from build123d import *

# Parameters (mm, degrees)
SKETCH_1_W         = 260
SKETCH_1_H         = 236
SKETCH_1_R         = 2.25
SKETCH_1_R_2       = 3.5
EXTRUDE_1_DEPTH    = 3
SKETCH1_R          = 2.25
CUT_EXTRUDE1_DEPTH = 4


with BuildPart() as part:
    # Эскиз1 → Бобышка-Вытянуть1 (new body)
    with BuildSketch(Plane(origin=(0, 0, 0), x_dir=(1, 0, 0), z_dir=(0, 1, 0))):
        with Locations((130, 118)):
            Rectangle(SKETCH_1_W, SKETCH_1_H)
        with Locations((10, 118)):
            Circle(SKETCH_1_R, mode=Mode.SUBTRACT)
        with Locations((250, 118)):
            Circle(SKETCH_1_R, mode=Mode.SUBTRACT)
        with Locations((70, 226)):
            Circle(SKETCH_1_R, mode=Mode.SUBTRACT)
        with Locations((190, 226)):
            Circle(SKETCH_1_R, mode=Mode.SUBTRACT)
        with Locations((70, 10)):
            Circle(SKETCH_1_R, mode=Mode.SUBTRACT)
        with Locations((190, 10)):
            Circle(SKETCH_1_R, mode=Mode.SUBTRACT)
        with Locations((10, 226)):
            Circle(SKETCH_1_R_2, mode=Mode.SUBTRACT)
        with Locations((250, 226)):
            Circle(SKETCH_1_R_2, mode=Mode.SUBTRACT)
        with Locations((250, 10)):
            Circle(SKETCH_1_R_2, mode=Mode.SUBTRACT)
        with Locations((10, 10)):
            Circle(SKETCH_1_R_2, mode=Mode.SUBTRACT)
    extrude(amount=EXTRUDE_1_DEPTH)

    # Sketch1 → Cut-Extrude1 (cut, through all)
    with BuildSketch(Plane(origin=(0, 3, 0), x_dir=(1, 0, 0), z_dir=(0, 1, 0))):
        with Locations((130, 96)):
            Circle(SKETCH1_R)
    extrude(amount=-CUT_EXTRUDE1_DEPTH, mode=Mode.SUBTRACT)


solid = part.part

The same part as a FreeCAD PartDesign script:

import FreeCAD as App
import Part
import Sketcher

V = App.Vector
Q = App.Units.Quantity

doc = App.newDocument("Part")
body = doc.addObject("PartDesign::Body", "Body")

# Sketch on XZ plane
sketch1 = doc.addObject("Sketcher::SketchObject", "Sketch")
body.addObject(sketch1)
sketch1.AttachmentSupport = (doc.XZ_Plane, [""])
sketch1.MapMode = "FlatFace"
sketch1.addGeometry([
    Part.LineSegment(V(0, -236, 0), V(0, 0, 0)),  # 0
    Part.LineSegment(V(0, 0, 0), V(260, 0, 0)),  # 1
    Part.LineSegment(V(260, 0, 0), V(260, -236, 0)),  # 2
    Part.LineSegment(V(260, -236, 0), V(0, -236, 0)),  # 3
    Part.Circle(V(10, -10, 0), V(0, 0, 1), 3.5),  # 4
    Part.Circle(V(70, -10, 0), V(0, 0, 1), 2.2),  # 5
    Part.Circle(V(190, -10, 0), V(0, 0, 1), 2.2),  # 6
    Part.Circle(V(250, -10, 0), V(0, 0, 1), 3.5),  # 7
    Part.Circle(V(10, -118, 0), V(0, 0, 1), 2.2),  # 8
    Part.Circle(V(10, -226, 0), V(0, 0, 1), 3.5),  # 9
    Part.Circle(V(70, -226, 0), V(0, 0, 1), 2.2),  # 10
    Part.Circle(V(250, -118, 0), V(0, 0, 1), 2.2),  # 11
    Part.Circle(V(190, -226, 0), V(0, 0, 1), 2.2),  # 12
    Part.Circle(V(250, -226, 0), V(0, 0, 1), 3.5),  # 13
], False)
sketch1.addConstraint([
    Sketcher.Constraint("Coincident", 0, 2, 1, 1),
    Sketcher.Constraint("Coincident", 1, 2, 2, 1),
    Sketcher.Constraint("Coincident", 2, 2, 3, 1),
    Sketcher.Constraint("Coincident", 3, 2, 0, 1),
    Sketcher.Constraint("Vertical", 0),
    Sketcher.Constraint("Horizontal", 1),
    Sketcher.Constraint("Vertical", 2),
    Sketcher.Constraint("Horizontal", 3),
    Sketcher.Constraint("Coincident", 0, 2, -1, 1),
    Sketcher.Constraint("Equal", 5, 6),
    Sketcher.Constraint("Equal", 4, 7),
    Sketcher.Constraint("Equal", 6, 8),
    Sketcher.Constraint("Equal", 7, 9),
    Sketcher.Constraint("Equal", 8, 10),
    Sketcher.Constraint("Equal", 10, 11),
    Sketcher.Constraint("Equal", 11, 12),
    Sketcher.Constraint("Equal", 9, 13),
    Sketcher.Constraint("Horizontal", 4, 3, 5, 3),
    Sketcher.Constraint("Horizontal", 5, 3, 6, 3),
    Sketcher.Constraint("Horizontal", 6, 3, 7, 3),
    Sketcher.Constraint("Horizontal", 9, 3, 10, 3),
    Sketcher.Constraint("Horizontal", 8, 3, 11, 3),
    Sketcher.Constraint("Horizontal", 10, 3, 12, 3),
    Sketcher.Constraint("Horizontal", 12, 3, 13, 3),
    Sketcher.Constraint("Vertical", 4, 3, 8, 3),
    Sketcher.Constraint("Vertical", 8, 3, 9, 3),
    Sketcher.Constraint("Vertical", 5, 3, 10, 3),
    Sketcher.Constraint("Vertical", 7, 3, 11, 3),
    Sketcher.Constraint("Vertical", 6, 3, 12, 3),
    Sketcher.Constraint("Vertical", 11, 3, 13, 3),
    Sketcher.Constraint("Diameter", 4, Q("7 mm")),
    Sketcher.Constraint("Diameter", 5, Q("4.5 mm")),
    Sketcher.Constraint("DistanceX", 1, 1, 1, 2, Q("260 mm")),
    Sketcher.Constraint("DistanceY", 0, 1, 0, 2, Q("236 mm")),
    Sketcher.Constraint("DistanceX", -1, 1, 4, 3, Q("10 mm")),
    Sketcher.Constraint("DistanceY", 4, 3, -1, 1, Q("10 mm")),
    Sketcher.Constraint("DistanceX", -1, 1, 5, 3, Q("70 mm")),
    Sketcher.Constraint("DistanceX", -1, 1, 6, 3, Q("190 mm")),
    Sketcher.Constraint("DistanceX", -1, 1, 7, 3, Q("250 mm")),
    Sketcher.Constraint("DistanceY", 8, 3, -1, 1, Q("118 mm")),
    Sketcher.Constraint("DistanceY", 9, 3, -1, 1, Q("226 mm")),
])
pad1 = doc.addObject("PartDesign::Pad", "Pad")
body.addObject(pad1)
pad1.Profile = sketch1
pad1.Length = 3
pad1.Reversed = True

# Sketch on XZ plane
sketch2 = doc.addObject("Sketcher::SketchObject", "Sketch001")
body.addObject(sketch2)
sketch2.AttachmentSupport = (doc.XZ_Plane, [""])
sketch2.MapMode = "FlatFace"
sketch2.AttachmentOffset = App.Placement(V(0, 0, -3), App.Rotation())
sketch2.addGeometry(Part.Circle(V(130, -96, 0), V(0, 0, 1), 2.2), False)
sketch2.addConstraint([
    Sketcher.Constraint("Diameter", 0, Q("4.5 mm")),
    Sketcher.Constraint("DistanceX", -1, 1, 0, 3, Q("130 mm")),
    Sketcher.Constraint("DistanceY", 0, 3, -1, 1, Q("96 mm")),
])
pocket1 = doc.addObject("PartDesign::Pocket", "Pocket")
body.addObject(pocket1)
pocket1.Profile = sketch2
pocket1.Type = "ThroughAll"
pocket1.Reversed = True

doc.recompute()
